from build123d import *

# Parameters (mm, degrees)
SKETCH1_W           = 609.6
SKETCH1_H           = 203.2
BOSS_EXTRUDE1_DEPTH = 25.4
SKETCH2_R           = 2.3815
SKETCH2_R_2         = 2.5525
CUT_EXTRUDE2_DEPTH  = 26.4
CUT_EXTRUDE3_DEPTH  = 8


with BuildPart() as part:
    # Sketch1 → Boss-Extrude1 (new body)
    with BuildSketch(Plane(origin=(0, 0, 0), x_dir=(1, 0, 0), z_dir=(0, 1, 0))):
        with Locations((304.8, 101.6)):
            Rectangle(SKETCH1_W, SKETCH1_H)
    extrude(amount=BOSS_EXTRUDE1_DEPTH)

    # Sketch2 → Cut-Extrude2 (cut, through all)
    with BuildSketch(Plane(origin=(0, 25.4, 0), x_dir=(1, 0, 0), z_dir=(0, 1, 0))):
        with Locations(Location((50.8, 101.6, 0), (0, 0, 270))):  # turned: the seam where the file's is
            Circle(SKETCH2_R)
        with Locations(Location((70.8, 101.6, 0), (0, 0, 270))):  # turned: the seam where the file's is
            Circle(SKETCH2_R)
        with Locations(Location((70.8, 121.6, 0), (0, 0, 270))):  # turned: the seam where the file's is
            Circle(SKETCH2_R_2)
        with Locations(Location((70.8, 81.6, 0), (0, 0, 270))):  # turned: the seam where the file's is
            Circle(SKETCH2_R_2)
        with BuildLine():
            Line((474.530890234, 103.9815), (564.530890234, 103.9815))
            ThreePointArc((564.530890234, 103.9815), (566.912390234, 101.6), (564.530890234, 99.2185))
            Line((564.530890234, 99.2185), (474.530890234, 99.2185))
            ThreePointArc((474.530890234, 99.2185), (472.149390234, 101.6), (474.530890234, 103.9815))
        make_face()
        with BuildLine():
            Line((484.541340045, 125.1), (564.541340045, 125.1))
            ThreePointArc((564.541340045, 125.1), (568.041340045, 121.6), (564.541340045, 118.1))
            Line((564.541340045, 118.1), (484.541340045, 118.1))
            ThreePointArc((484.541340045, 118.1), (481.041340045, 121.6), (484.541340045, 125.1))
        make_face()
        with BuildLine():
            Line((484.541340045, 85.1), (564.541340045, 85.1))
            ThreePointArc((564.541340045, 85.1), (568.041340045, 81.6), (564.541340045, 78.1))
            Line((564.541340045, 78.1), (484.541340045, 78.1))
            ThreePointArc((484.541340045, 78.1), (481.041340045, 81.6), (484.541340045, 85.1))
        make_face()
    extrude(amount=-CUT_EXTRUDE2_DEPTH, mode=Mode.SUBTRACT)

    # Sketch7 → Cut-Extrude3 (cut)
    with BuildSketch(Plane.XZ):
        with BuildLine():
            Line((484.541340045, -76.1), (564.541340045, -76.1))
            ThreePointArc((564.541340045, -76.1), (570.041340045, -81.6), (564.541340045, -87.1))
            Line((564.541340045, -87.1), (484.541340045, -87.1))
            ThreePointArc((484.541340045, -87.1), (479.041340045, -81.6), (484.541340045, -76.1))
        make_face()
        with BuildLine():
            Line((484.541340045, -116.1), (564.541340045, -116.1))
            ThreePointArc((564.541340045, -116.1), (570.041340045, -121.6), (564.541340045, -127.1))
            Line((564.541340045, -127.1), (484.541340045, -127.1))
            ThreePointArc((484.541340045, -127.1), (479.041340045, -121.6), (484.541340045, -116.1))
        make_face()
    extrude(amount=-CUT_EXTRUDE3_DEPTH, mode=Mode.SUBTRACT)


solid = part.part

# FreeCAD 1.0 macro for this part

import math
import FreeCAD as App
import Part
import Sketcher
from FreeCAD import Vector
Q = App.Units.Quantity


def add_polygon(sketch, points):
    """Adds a closed chain of lines whose ends are joined by coincident constraints."""
    first, n = sketch.GeometryCount, len(points)
    for a, b in zip(points, points[1:] + points[:1]):
        sketch.addGeometry(Part.LineSegment(App.Vector(*a, 0), App.Vector(*b, 0)), False)
    for i in range(n):
        sketch.addConstraint(Sketcher.Constraint("Coincident", first + i, 2, first + (i + 1) % n, 1))

doc = App.newDocument("Part")
body = doc.addObject("PartDesign::Body", "Body")

# Sketch on XZ plane
sketch1 = body.newObject("Sketcher::SketchObject", "Sketch")
sketch1.AttachmentSupport = (doc.getObject("XZ_Plane"), [""])
sketch1.MapMode = "FlatFace"
add_polygon(sketch1, [(0, -203), (0, 0), (610, 0), (610, -203)])  # lines 0-3
sketch1.addConstraint([
    Sketcher.Constraint("Vertical", 0),
    Sketcher.Constraint("Horizontal", 1),
    Sketcher.Constraint("Vertical", 2),
    Sketcher.Constraint("Horizontal", 3),
    Sketcher.Constraint("Coincident", 0, 2, -1, 1),
    Sketcher.Constraint("DistanceX", 1, 1, 1, 2, Q("609.6 mm")),
    Sketcher.Constraint("DistanceY", 0, 1, 0, 2, Q("203.2 mm")),
])
pad1 = body.newObject("PartDesign::Pad", "Pad")
pad1.Profile = sketch1
pad1.Length = 25.4
pad1.Reversed = True

# Sketch on XZ plane
sketch2 = body.newObject("Sketcher::SketchObject", "Sketch001")
sketch2.AttachmentSupport = (doc.getObject("XZ_Plane"), [""])
sketch2.MapMode = "FlatFace"
sketch2.AttachmentOffset = App.Placement(Vector(0, 0, -25.4), App.Rotation())
sketch2.addGeometry([
    Part.Circle(Vector(50.8, -101.6, 0), Vector(0, 0, 1), 2.4),  # 0
    Part.Circle(Vector(70.8, -101.6, 0), Vector(0, 0, 1), 2.4),  # 1
    Part.Circle(Vector(70.8, -121.6, 0), Vector(0, 0, 1), 2.6),  # 2
    Part.Circle(Vector(70.8, -81.6, 0), Vector(0, 0, 1), 2.6),  # 3
    Part.LineSegment(Vector(564.5, -104, 0), Vector(474.5, -104, 0)),  # 4
    Part.ArcOfCircle(Part.Circle(Vector(474.5, -101.6, 0), Vector(0, 0, 1), 2.4), math.radians(90), math.radians(270)),  # 5
    Part.LineSegment(Vector(474.5, -99.2, 0), Vector(564.5, -99.2, 0)),  # 6
    Part.ArcOfCircle(Part.Circle(Vector(564.5, -101.6, 0), Vector(0, 0, 1), 2.4), math.radians(-90), math.radians(90)),  # 7
    Part.LineSegment(Vector(564.5, -125.1, 0), Vector(484.5, -125.1, 0)),  # 8
    Part.ArcOfCircle(Part.Circle(Vector(484.5, -121.6, 0), Vector(0, 0, 1), 3.5), math.radians(90), math.radians(270)),  # 9
    Part.LineSegment(Vector(484.5, -118.1, 0), Vector(564.5, -118.1, 0)),  # 10
    Part.ArcOfCircle(Part.Circle(Vector(564.5, -121.6, 0), Vector(0, 0, 1), 3.5), math.radians(-90), math.radians(90)),  # 11
    Part.LineSegment(Vector(564.5, -85.1, 0), Vector(484.5, -85.1, 0)),  # 12
    Part.ArcOfCircle(Part.Circle(Vector(484.5, -81.6, 0), Vector(0, 0, 1), 3.5), math.radians(90), math.radians(270)),  # 13
    Part.LineSegment(Vector(484.5, -78.1, 0), Vector(564.5, -78.1, 0)),  # 14
    Part.ArcOfCircle(Part.Circle(Vector(564.5, -81.6, 0), Vector(0, 0, 1), 3.5), math.radians(-90), math.radians(90)),  # 15
], False)
sketch2.addConstraint([
    Sketcher.Constraint("Tangent", 4, 2, 5, 2),
    Sketcher.Constraint("Tangent", 5, 1, 6, 1),
    Sketcher.Constraint("Tangent", 6, 2, 7, 2),
    Sketcher.Constraint("Tangent", 7, 1, 4, 1),
    Sketcher.Constraint("Tangent", 8, 2, 9, 2),
    Sketcher.Constraint("Tangent", 9, 1, 10, 1),
    Sketcher.Constraint("Tangent", 10, 2, 11, 2),
    Sketcher.Constraint("Tangent", 11, 1, 8, 1),
    Sketcher.Constraint("Tangent", 12, 2, 13, 2),
    Sketcher.Constraint("Tangent", 13, 1, 14, 1),
    Sketcher.Constraint("Tangent", 14, 2, 15, 2),
    Sketcher.Constraint("Tangent", 15, 1, 12, 1),
    Sketcher.Constraint("Horizontal", 4),
    Sketcher.Constraint("Horizontal", 6),
    Sketcher.Constraint("Horizontal", 8),
    Sketcher.Constraint("Horizontal", 10),
    Sketcher.Constraint("Horizontal", 12),
    Sketcher.Constraint("Horizontal", 14),
    Sketcher.Constraint("Equal", 0, 1),
    Sketcher.Constraint("Equal", 2, 3),
    Sketcher.Constraint("Equal", 1, 5),
    Sketcher.Constraint("Equal", 11, 13),
    Sketcher.Constraint("Horizontal", 0, 3, 1, 3),
    Sketcher.Constraint("Horizontal", 1, 3, 5, 3),
    Sketcher.Constraint("Horizontal", 2, 3, 9, 3),
    Sketcher.Constraint("Horizontal", 3, 3, 13, 3),
    Sketcher.Constraint("Vertical", 1, 3, 2, 3),
    Sketcher.Constraint("Vertical", 2, 3, 3, 3),
    Sketcher.Constraint("Vertical", 9, 3, 13, 3),
    Sketcher.Constraint("Vertical", 11, 3, 15, 3),
    Sketcher.Constraint("Radius", 9, Q("3.5 mm")),
    Sketcher.Constraint("DistanceX", 4, 2, 4, 1, Q("90 mm")),
    Sketcher.Constraint("DistanceX", 8, 2, 8, 1, Q("80 mm")),
    Sketcher.Constraint("Diameter", 0, Q("4.763 mm")),
    Sketcher.Constraint("Diameter", 2, Q("5.105 mm")),
    Sketcher.Constraint("DistanceX", 0, 3, 1, 3, Q("20 mm")),
    Sketcher.Constraint("DistanceY", 2, 3, 1, 3, Q("20 mm")),
    Sketcher.Constraint("DistanceY", 1, 3, 3, 3, Q("20 mm")),
    Sketcher.Constraint("DistanceX", -1, 1, 0, 3, Q("50.8 mm")),
    Sketcher.Constraint("DistanceY", 0, 3, -1, 1, Q("101.6 mm")),
    Sketcher.Constraint("DistanceX", -1, 1, 5, 3, Q("474.53089 mm")),
    Sketcher.Constraint("DistanceX", -1, 1, 9, 3, Q("484.54134 mm")),
])
pocket1 = body.newObject("PartDesign::Pocket", "Pocket")
pocket1.Profile = sketch2
pocket1.Type = "ThroughAll"
pocket1.Reversed = True

# Sketch on XZ plane
sketch3 = body.newObject("Sketcher::SketchObject", "Sketch002")
sketch3.AttachmentSupport = (doc.getObject("XZ_Plane"), [""])
sketch3.MapMode = "FlatFace"
sketch3.addGeometry([
    Part.LineSegment(Vector(565, -76, 0), Vector(485, -76, 0)),  # 0
    Part.ArcOfCircle(Part.Circle(Vector(485, -82, 0), Vector(0, 0, 1), 6), math.radians(90), math.radians(270)),  # 1
    Part.LineSegment(Vector(485, -87, 0), Vector(565, -87, 0)),  # 2
    Part.ArcOfCircle(Part.Circle(Vector(565, -82, 0), Vector(0, 0, 1), 6), math.radians(-90), math.radians(90)),  # 3
    Part.LineSegment(Vector(565, -116, 0), Vector(485, -116, 0)),  # 4
    Part.ArcOfCircle(Part.Circle(Vector(485, -122, 0), Vector(0, 0, 1), 6), math.radians(90), math.radians(270)),  # 5
    Part.LineSegment(Vector(485, -127, 0), Vector(565, -127, 0)),  # 6
    Part.ArcOfCircle(Part.Circle(Vector(565, -122, 0), Vector(0, 0, 1), 6), math.radians(-90), math.radians(90)),  # 7
], False)
sketch3.addConstraint([
    Sketcher.Constraint("Tangent", 0, 2, 1, 1),
    Sketcher.Constraint("Tangent", 1, 2, 2, 1),
    Sketcher.Constraint("Tangent", 2, 2, 3, 1),
    Sketcher.Constraint("Tangent", 3, 2, 0, 1),
    Sketcher.Constraint("Tangent", 4, 2, 5, 1),
    Sketcher.Constraint("Tangent", 5, 2, 6, 1),
    Sketcher.Constraint("Tangent", 6, 2, 7, 1),
    Sketcher.Constraint("Tangent", 7, 2, 4, 1),
    Sketcher.Constraint("Horizontal", 0),
    Sketcher.Constraint("Horizontal", 2),
    Sketcher.Constraint("Horizontal", 4),
    Sketcher.Constraint("Horizontal", 6),
    Sketcher.Constraint("Equal", 3, 5),
    Sketcher.Constraint("Vertical", 1, 3, 5, 3),
    Sketcher.Constraint("Vertical", 3, 3, 7, 3),
    Sketcher.Constraint("Radius", 1, Q("5.5 mm")),
    Sketcher.Constraint("DistanceX", 0, 2, 0, 1, Q("80 mm")),
    Sketcher.Constraint("DistanceY", 5, 3, 1, 3, Q("40 mm")),
    Sketcher.Constraint("DistanceY", 1, 3, -1, 1, Q("81.6 mm")),
    Sketcher.Constraint("DistanceX", -1, 1, 1, 3, Q("484.54134 mm")),
])
pocket2 = body.newObject("PartDesign::Pocket", "Pocket001")
pocket2.Profile = sketch3
pocket2.Length = 8

doc.recompute()
